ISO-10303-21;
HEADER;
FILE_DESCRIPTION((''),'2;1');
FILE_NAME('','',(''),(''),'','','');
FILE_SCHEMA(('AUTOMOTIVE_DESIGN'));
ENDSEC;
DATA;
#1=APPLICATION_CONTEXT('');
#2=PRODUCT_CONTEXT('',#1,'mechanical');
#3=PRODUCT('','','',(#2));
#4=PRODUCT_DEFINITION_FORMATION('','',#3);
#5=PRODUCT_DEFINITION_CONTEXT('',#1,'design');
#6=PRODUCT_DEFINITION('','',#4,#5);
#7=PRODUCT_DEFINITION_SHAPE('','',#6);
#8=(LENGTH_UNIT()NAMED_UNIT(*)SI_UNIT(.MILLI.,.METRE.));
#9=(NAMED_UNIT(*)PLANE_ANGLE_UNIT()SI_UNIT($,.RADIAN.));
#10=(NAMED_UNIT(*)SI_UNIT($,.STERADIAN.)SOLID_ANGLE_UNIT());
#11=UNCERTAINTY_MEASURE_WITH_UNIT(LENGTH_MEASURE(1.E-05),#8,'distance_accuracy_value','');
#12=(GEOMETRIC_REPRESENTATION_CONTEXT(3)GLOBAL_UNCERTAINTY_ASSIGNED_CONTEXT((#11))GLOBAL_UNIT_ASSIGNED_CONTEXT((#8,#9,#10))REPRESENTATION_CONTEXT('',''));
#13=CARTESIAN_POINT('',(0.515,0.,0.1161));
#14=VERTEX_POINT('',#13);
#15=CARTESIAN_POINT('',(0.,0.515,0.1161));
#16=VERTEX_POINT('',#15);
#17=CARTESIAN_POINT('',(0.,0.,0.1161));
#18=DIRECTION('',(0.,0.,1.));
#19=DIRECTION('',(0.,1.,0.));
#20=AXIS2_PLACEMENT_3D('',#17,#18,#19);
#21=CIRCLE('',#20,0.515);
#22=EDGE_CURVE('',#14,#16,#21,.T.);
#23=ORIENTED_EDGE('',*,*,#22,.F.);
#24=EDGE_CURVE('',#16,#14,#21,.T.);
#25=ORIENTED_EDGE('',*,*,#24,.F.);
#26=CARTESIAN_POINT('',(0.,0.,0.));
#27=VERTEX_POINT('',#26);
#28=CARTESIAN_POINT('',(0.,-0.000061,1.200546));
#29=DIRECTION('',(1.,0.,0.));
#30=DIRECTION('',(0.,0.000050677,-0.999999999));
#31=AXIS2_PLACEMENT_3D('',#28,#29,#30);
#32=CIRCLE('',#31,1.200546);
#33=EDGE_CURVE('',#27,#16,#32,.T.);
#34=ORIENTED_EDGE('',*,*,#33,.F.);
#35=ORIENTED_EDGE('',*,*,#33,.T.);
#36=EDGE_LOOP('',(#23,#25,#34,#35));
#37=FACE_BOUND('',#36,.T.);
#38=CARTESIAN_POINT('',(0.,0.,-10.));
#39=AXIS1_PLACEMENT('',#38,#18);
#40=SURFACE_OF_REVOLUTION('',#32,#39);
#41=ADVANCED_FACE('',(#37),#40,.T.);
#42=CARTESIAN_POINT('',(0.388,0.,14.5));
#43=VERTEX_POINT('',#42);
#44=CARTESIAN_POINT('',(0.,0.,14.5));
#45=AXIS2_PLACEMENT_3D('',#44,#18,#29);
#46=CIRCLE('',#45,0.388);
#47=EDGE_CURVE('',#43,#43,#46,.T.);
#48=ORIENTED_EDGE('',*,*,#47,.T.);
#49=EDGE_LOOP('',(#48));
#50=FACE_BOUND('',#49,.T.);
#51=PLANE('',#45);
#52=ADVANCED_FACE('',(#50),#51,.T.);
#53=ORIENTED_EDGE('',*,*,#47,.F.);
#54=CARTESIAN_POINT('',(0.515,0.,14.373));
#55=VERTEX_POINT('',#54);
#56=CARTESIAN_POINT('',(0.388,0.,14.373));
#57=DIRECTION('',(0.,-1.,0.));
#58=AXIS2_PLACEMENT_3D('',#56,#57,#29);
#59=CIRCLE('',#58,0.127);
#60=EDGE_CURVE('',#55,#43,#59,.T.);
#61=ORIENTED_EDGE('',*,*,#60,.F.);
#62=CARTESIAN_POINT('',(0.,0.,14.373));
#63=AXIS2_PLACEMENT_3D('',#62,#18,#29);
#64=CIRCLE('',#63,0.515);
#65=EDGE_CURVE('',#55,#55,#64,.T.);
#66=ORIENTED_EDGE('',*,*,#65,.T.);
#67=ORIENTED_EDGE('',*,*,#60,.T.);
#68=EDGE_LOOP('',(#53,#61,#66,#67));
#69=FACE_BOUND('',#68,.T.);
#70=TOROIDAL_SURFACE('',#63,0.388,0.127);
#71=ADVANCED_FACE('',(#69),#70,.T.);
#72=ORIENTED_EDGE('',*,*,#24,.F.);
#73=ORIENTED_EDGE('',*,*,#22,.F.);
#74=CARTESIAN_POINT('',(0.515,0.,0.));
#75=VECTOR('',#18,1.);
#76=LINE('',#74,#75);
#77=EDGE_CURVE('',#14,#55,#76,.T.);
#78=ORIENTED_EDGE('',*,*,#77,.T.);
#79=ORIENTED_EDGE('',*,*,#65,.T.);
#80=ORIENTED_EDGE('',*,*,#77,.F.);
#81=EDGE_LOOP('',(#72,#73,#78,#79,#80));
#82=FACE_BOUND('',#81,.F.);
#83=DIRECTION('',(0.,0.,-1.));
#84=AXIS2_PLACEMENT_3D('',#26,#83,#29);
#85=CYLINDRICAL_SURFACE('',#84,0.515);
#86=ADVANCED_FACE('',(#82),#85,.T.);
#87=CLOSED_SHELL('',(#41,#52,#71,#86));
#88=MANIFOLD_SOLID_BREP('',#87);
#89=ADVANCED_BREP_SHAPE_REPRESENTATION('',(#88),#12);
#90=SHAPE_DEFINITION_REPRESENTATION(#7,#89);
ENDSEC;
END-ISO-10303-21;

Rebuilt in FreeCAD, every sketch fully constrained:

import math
import FreeCAD as App
import Part
import Sketcher
Q = App.Units.Quantity


def edges_at(feature, points):
    """Names of the edges that pass closest to the given points."""
    edges = feature.Shape.Edges
    near = lambda p: min(range(len(edges)), key=lambda i: edges[i].distToShape(Part.Vertex(*p))[0])
    return sorted({f"Edge{near(p) + 1}" for p in points})

doc = App.newDocument("Part")
body = doc.addObject("PartDesign::Body", "Body")

sketch1 = body.newObject("Sketcher::SketchObject", "Sketch")
sketch1.AttachmentSupport = (doc.getObject("XY_Plane"), [""])
sketch1.MapMode = "FlatFace"
sketch1.addGeometry(Part.Circle(App.Vector(0, 0, 0), App.Vector(0, 0, 1), 0.515), False)
sketch1.addConstraint(Sketcher.Constraint("Coincident", 0, 3, -1, 1))
sketch1.addConstraint(Sketcher.Constraint("Diameter", 0, Q("1.03 mm")))
pad1 = body.newObject("PartDesign::Pad", "Pad")
pad1.Profile = sketch1
pad1.Length = 14.5

sketch2 = body.newObject("Sketcher::SketchObject", "Sketch001")
sketch2.AttachmentSupport = (doc.getObject("YZ_Plane"), [""])
sketch2.MapMode = "FlatFace"
sketch2.addGeometry(Part.ArcOfCircle(Part.Circle(App.Vector(0, 1.2, 0), App.Vector(0, 0, 1), 1.2), math.radians(-90), math.radians(-64.585921)), False)
sketch2.addGeometry(Part.LineSegment(App.Vector(0, 0, 0), App.Vector(0.515, 0, 0)), False)
sketch2.addGeometry(Part.LineSegment(App.Vector(0.515, 0, 0), App.Vector(0.515, 0.1161, 0)), False)
sketch2.addConstraint(Sketcher.Constraint("Tangent", 0, 1, 1, 1))
sketch2.addConstraint(Sketcher.Constraint("Coincident", 1, 2, 2, 1))
sketch2.addConstraint(Sketcher.Constraint("Coincident", 2, 2, 0, 2))
sketch2.addConstraint(Sketcher.Constraint("Horizontal", 1))
sketch2.addConstraint(Sketcher.Constraint("Vertical", 2))
sketch2.addConstraint(Sketcher.Constraint("Coincident", 0, 1, -1, 1))
sketch2.addConstraint(Sketcher.Constraint("Radius", 0, Q("1.2 mm")))
sketch2.addConstraint(Sketcher.Constraint("DistanceX", 1, 1, 1, 2, Q("0.515 mm")))
groove = body.newObject("PartDesign::Groove", "Groove")
groove.Profile = sketch2
groove.ReferenceAxis = (sketch2, ["V_Axis"])
groove.Angle = 360
doc.recompute()

fillet = body.newObject("PartDesign::Fillet", "Fillet")
fillet.Base = (groove, edges_at(groove, [(-0.515, 0, 14.5)]))
fillet.Radius = 0.127

doc.recompute()
